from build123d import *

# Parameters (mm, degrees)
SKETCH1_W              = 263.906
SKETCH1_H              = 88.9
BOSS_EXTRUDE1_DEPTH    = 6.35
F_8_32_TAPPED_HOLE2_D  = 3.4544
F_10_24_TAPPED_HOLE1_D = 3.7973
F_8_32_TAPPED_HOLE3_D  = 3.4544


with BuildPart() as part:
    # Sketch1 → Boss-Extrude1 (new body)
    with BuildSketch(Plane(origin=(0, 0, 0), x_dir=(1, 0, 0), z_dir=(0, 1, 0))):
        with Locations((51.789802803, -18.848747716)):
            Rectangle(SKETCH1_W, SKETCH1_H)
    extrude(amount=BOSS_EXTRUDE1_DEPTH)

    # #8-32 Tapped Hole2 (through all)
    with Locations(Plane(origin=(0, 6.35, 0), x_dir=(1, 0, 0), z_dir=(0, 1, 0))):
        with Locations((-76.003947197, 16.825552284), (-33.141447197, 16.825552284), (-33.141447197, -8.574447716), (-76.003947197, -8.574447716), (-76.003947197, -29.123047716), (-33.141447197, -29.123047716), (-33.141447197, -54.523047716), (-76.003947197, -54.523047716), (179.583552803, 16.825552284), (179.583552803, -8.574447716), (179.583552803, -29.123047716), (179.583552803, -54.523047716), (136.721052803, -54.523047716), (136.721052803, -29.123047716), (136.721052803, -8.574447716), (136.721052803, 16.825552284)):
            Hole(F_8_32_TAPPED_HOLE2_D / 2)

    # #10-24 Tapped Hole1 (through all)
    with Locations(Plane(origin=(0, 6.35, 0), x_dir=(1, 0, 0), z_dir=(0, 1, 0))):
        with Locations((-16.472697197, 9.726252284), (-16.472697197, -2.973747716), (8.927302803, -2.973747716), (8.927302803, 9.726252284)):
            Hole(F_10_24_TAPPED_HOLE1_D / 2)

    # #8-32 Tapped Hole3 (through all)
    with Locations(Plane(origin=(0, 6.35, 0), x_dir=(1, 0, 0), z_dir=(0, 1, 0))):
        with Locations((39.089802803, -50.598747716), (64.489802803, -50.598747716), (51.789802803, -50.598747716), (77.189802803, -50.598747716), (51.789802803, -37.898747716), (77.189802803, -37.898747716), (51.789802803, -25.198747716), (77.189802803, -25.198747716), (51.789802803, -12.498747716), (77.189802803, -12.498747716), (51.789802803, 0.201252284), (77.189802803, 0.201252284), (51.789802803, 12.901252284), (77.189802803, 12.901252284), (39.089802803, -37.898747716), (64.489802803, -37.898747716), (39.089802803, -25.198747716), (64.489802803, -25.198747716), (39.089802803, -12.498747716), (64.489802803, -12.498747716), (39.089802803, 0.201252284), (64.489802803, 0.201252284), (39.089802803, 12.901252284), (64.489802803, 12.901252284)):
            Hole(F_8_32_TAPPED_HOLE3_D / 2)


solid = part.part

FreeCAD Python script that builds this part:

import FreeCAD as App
import Part
import Sketcher
Q = App.Units.Quantity


def add_polygon(sketch, points):
    """Adds a closed chain of lines whose ends are joined by coincident constraints."""
    first, n = sketch.GeometryCount, len(points)
    for a, b in zip(points, points[1:] + points[:1]):
        sketch.addGeometry(Part.LineSegment(App.Vector(*a, 0), App.Vector(*b, 0)), False)
    for i in range(n):
        sketch.addConstraint(Sketcher.Constraint("Coincident", first + i, 2, first + (i + 1) % n, 1))

doc = App.newDocument("Part")
body = doc.addObject("PartDesign::Body", "Body")

# Sketch on XZ plane
sketch1 = body.newObject("Sketcher::SketchObject", "Sketch")
sketch1.AttachmentSupport = (doc.getObject("XZ_Plane"), [""])
sketch1.MapMode = "FlatFace"
add_polygon(sketch1, [(-80, -26), (-80, 63), (184, 63), (184, -26)])  # lines 0-3
sketch1.addConstraint(Sketcher.Constraint("Vertical", 0))
sketch1.addConstraint(Sketcher.Constraint("Horizontal", 1))
sketch1.addConstraint(Sketcher.Constraint("Vertical", 2))
sketch1.addConstraint(Sketcher.Constraint("Horizontal", 3))
sketch1.addConstraint(Sketcher.Constraint("DistanceY", 0, 1, 0, 2, Q("3.5 in")))
sketch1.addConstraint(Sketcher.Constraint("DistanceX", 1, 1, 1, 2, Q("10.39 in")))
sketch1.addConstraint(Sketcher.Constraint("DistanceX", 0, 2, -1, 1, 80.163197))
sketch1.addConstraint(Sketcher.Constraint("DistanceY", -1, 1, 0, 2, 63.298748))
pad1 = body.newObject("PartDesign::Pad", "Pad")
pad1.Profile = sketch1
pad1.Length = Q("0.25 in")
pad1.Reversed = True

# Sketch on XZ plane
sketch2 = body.newObject("Sketcher::SketchObject", "Sketch001")
sketch2.AttachmentSupport = (doc.getObject("XZ_Plane"), [""])
sketch2.MapMode = "FlatFace"
sketch2.AttachmentOffset = App.Placement(App.Vector(0, 0, -0.25 * 25.4), App.Rotation())
sketch2.addGeometry(Part.Circle(App.Vector(-76, -16.8, 0), App.Vector(0, 0, 1), 1.7), False)
sketch2.addGeometry(Part.Circle(App.Vector(-33.1, -16.8, 0), App.Vector(0, 0, 1), 1.7), False)
sketch2.addGeometry(Part.Circle(App.Vector(-33.1, 8.6, 0), App.Vector(0, 0, 1), 1.7), False)
sketch2.addGeometry(Part.Circle(App.Vector(-76, 8.6, 0), App.Vector(0, 0, 1), 1.7), False)
sketch2.addGeometry(Part.Circle(App.Vector(-76, 29.1, 0), App.Vector(0, 0, 1), 1.7), False)
sketch2.addGeometry(Part.Circle(App.Vector(-33.1, 29.1, 0), App.Vector(0, 0, 1), 1.7), False)
sketch2.addGeometry(Part.Circle(App.Vector(-33.1, 54.5, 0), App.Vector(0, 0, 1), 1.7), False)
sketch2.addGeometry(Part.Circle(App.Vector(-76, 54.5, 0), App.Vector(0, 0, 1), 1.7), False)
sketch2.addGeometry(Part.Circle(App.Vector(179.6, -16.8, 0), App.Vector(0, 0, 1), 1.7), False)
sketch2.addGeometry(Part.Circle(App.Vector(179.6, 8.6, 0), App.Vector(0, 0, 1), 1.7), False)
sketch2.addGeometry(Part.Circle(App.Vector(179.6, 29.1, 0), App.Vector(0, 0, 1), 1.7), False)
sketch2.addGeometry(Part.Circle(App.Vector(179.6, 54.5, 0), App.Vector(0, 0, 1), 1.7), False)
sketch2.addGeometry(Part.Circle(App.Vector(136.7, 54.5, 0), App.Vector(0, 0, 1), 1.7), False)
sketch2.addGeometry(Part.Circle(App.Vector(136.7, 29.1, 0), App.Vector(0, 0, 1), 1.7), False)
sketch2.addGeometry(Part.Circle(App.Vector(136.7, 8.6, 0), App.Vector(0, 0, 1), 1.7), False)
sketch2.addGeometry(Part.Circle(App.Vector(136.7, -16.8, 0), App.Vector(0, 0, 1), 1.7), False)
sketch2.addConstraint(Sketcher.Constraint("Equal", 0, 1))
sketch2.addConstraint(Sketcher.Constraint("Equal", 1, 2))
sketch2.addConstraint(Sketcher.Constraint("Equal", 2, 3))
sketch2.addConstraint(Sketcher.Constraint("Equal", 3, 4))
sketch2.addConstraint(Sketcher.Constraint("Equal", 4, 5))
sketch2.addConstraint(Sketcher.Constraint("Equal", 5, 6))
sketch2.addConstraint(Sketcher.Constraint("Equal", 6, 7))
sketch2.addConstraint(Sketcher.Constraint("Equal", 7, 8))
sketch2.addConstraint(Sketcher.Constraint("Equal", 8, 9))
sketch2.addConstraint(Sketcher.Constraint("Equal", 9, 10))
sketch2.addConstraint(Sketcher.Constraint("Equal", 10, 11))
sketch2.addConstraint(Sketcher.Constraint("Equal", 11, 12))
sketch2.addConstraint(Sketcher.Constraint("Equal", 12, 13))
sketch2.addConstraint(Sketcher.Constraint("Equal", 13, 14))
sketch2.addConstraint(Sketcher.Constraint("Equal", 14, 15))
sketch2.addConstraint(Sketcher.Constraint("Horizontal", 0, 3, 1, 3))
sketch2.addConstraint(Sketcher.Constraint("Horizontal", 2, 3, 3, 3))
sketch2.addConstraint(Sketcher.Constraint("Horizontal", 4, 3, 5, 3))
sketch2.addConstraint(Sketcher.Constraint("Horizontal", 6, 3, 7, 3))
sketch2.addConstraint(Sketcher.Constraint("Horizontal", 1, 3, 8, 3))
sketch2.addConstraint(Sketcher.Constraint("Horizontal", 3, 3, 9, 3))
sketch2.addConstraint(Sketcher.Constraint("Horizontal", 5, 3, 10, 3))
sketch2.addConstraint(Sketcher.Constraint("Horizontal", 7, 3, 11, 3))
sketch2.addConstraint(Sketcher.Constraint("Horizontal", 11, 3, 12, 3))
sketch2.addConstraint(Sketcher.Constraint("Horizontal", 10, 3, 13, 3))
sketch2.addConstraint(Sketcher.Constraint("Horizontal", 9, 3, 14, 3))
sketch2.addConstraint(Sketcher.Constraint("Horizontal", 8, 3, 15, 3))
sketch2.addConstraint(Sketcher.Constraint("Vertical", 1, 3, 2, 3))
sketch2.addConstraint(Sketcher.Constraint("Vertical", 0, 3, 3, 3))
sketch2.addConstraint(Sketcher.Constraint("Vertical", 3, 3, 4, 3))
sketch2.addConstraint(Sketcher.Constraint("Vertical", 2, 3, 5, 3))
sketch2.addConstraint(Sketcher.Constraint("Vertical", 5, 3, 6, 3))
sketch2.addConstraint(Sketcher.Constraint("Vertical", 4, 3, 7, 3))
sketch2.addConstraint(Sketcher.Constraint("Vertical", 8, 3, 9, 3))
sketch2.addConstraint(Sketcher.Constraint("Vertical", 9, 3, 10, 3))
sketch2.addConstraint(Sketcher.Constraint("Vertical", 10, 3, 11, 3))
sketch2.addConstraint(Sketcher.Constraint("Vertical", 12, 3, 13, 3))
sketch2.addConstraint(Sketcher.Constraint("Vertical", 13, 3, 14, 3))
sketch2.addConstraint(Sketcher.Constraint("Vertical", 14, 3, 15, 3))
sketch2.addConstraint(Sketcher.Constraint("Diameter", 0, Q("0.136 in")))
sketch2.addConstraint(Sketcher.Constraint("DistanceY", 1, 3, 2, 3, Q("1 in")))
sketch2.addConstraint(Sketcher.Constraint("DistanceY", 5, 3, 6, 3, Q("1 in")))
sketch2.addConstraint(Sketcher.Constraint("DistanceX", 0, 3, 1, 3, Q("1.6875 in")))
sketch2.addConstraint(Sketcher.Constraint("DistanceY", 3, 3, 4, 3, Q("0.809 in")))
sketch2.addConstraint(Sketcher.Constraint("DistanceX", 1, 3, 8, 3, Q("8.375 in")))
sketch2.addConstraint(Sketcher.Constraint("DistanceX", 12, 3, 11, 3, Q("1.6875 in")))
sketch2.addConstraint(Sketcher.Constraint("DistanceX", 0, 3, -1, 1, 76.003947))
sketch2.addConstraint(Sketcher.Constraint("DistanceY", 0, 3, -1, 1, 16.825552))
doc.recompute()
hole = body.newObject("PartDesign::Hole", "Hole")
hole.Profile = sketch2
hole.ThreadType = "None"
hole.Diameter = Q("0.136 in")
hole.DepthType = "ThroughAll"
hole.Reversed = True

# Sketch on XZ plane
sketch3 = body.newObject("Sketcher::SketchObject", "Sketch002")
sketch3.AttachmentSupport = (doc.getObject("XZ_Plane"), [""])
sketch3.MapMode = "FlatFace"
sketch3.AttachmentOffset = App.Placement(App.Vector(0, 0, -0.25 * 25.4), App.Rotation())
sketch3.addGeometry(Part.Circle(App.Vector(-16.5, -9.7, 0), App.Vector(0, 0, 1), 1.9), False)
sketch3.addGeometry(Part.Circle(App.Vector(-16.5, 3, 0), App.Vector(0, 0, 1), 1.9), False)
sketch3.addGeometry(Part.Circle(App.Vector(8.9, 3, 0), App.Vector(0, 0, 1), 1.9), False)
sketch3.addGeometry(Part.Circle(App.Vector(8.9, -9.7, 0), App.Vector(0, 0, 1), 1.9), False)
sketch3.addConstraint(Sketcher.Constraint("Equal", 0, 1))
sketch3.addConstraint(Sketcher.Constraint("Equal", 1, 2))
sketch3.addConstraint(Sketcher.Constraint("Equal", 2, 3))
sketch3.addConstraint(Sketcher.Constraint("Horizontal", 1, 3, 2, 3))
sketch3.addConstraint(Sketcher.Constraint("Horizontal", 0, 3, 3, 3))
sketch3.addConstraint(Sketcher.Constraint("Vertical", 0, 3, 1, 3))
sketch3.addConstraint(Sketcher.Constraint("Vertical", 2, 3, 3, 3))
sketch3.addConstraint(Sketcher.Constraint("DistanceX", 1, 3, 2, 3, Q("1 in")))
sketch3.addConstraint(Sketcher.Constraint("Diameter", 0, Q("0.1495 in")))
sketch3.addConstraint(Sketcher.Constraint("DistanceY", 0, 3, 1, 3, Q("0.5 in")))
sketch3.addConstraint(Sketcher.Constraint("DistanceX", 0, 3, -1, 1, 16.472697))
sketch3.addConstraint(Sketcher.Constraint("DistanceY", 0, 3, -1, 1, 9.726252))
doc.recompute()
hole2 = body.newObject("PartDesign::Hole", "Hole001")
hole2.Profile = sketch3
hole2.ThreadType = "None"
hole2.Diameter = Q("0.1495 in")
hole2.DepthType = "ThroughAll"
hole2.Reversed = True

# Sketch on XZ plane
sketch4 = body.newObject("Sketcher::SketchObject", "Sketch003")
sketch4.AttachmentSupport = (doc.getObject("XZ_Plane"), [""])
sketch4.MapMode = "FlatFace"
sketch4.AttachmentOffset = App.Placement(App.Vector(0, 0, -0.25 * 25.4), App.Rotation())
sketch4.addGeometry(Part.Circle(App.Vector(39.1, 50.6, 0), App.Vector(0, 0, 1), 1.7), False)
sketch4.addGeometry(Part.Circle(App.Vector(64.5, 50.6, 0), App.Vector(0, 0, 1), 1.7), False)
sketch4.addGeometry(Part.Circle(App.Vector(51.8, 50.6, 0), App.Vector(0, 0, 1), 1.7), False)
sketch4.addGeometry(Part.Circle(App.Vector(77.2, 50.6, 0), App.Vector(0, 0, 1), 1.7), False)
sketch4.addGeometry(Part.Circle(App.Vector(51.8, 37.9, 0), App.Vector(0, 0, 1), 1.7), False)
sketch4.addGeometry(Part.Circle(App.Vector(77.2, 37.9, 0), App.Vector(0, 0, 1), 1.7), False)
sketch4.addGeometry(Part.Circle(App.Vector(51.8, 25.2, 0), App.Vector(0, 0, 1), 1.7), False)
sketch4.addGeometry(Part.Circle(App.Vector(77.2, 25.2, 0), App.Vector(0, 0, 1), 1.7), False)
sketch4.addGeometry(Part.Circle(App.Vector(51.8, 12.5, 0), App.Vector(0, 0, 1), 1.7), False)
sketch4.addGeometry(Part.Circle(App.Vector(77.2, 12.5, 0), App.Vector(0, 0, 1), 1.7), False)
sketch4.addGeometry(Part.Circle(App.Vector(51.8, -0.2, 0), App.Vector(0, 0, 1), 1.7), False)
sketch4.addGeometry(Part.Circle(App.Vector(77.2, -0.2, 0), App.Vector(0, 0, 1), 1.7), False)
sketch4.addGeometry(Part.Circle(App.Vector(51.8, -12.9, 0), App.Vector(0, 0, 1), 1.7), False)
sketch4.addGeometry(Part.Circle(App.Vector(77.2, -12.9, 0), App.Vector(0, 0, 1), 1.7), False)
sketch4.addGeometry(Part.Circle(App.Vector(39.1, 37.9, 0), App.Vector(0, 0, 1), 1.7), False)
sketch4.addGeometry(Part.Circle(App.Vector(64.5, 37.9, 0), App.Vector(0, 0, 1), 1.7), False)
sketch4.addGeometry(Part.Circle(App.Vector(39.1, 25.2, 0), App.Vector(0, 0, 1), 1.7), False)
sketch4.addGeometry(Part.Circle(App.Vector(64.5, 25.2, 0), App.Vector(0, 0, 1), 1.7), False)
sketch4.addGeometry(Part.Circle(App.Vector(39.1, 12.5, 0), App.Vector(0, 0, 1), 1.7), False)
sketch4.addGeometry(Part.Circle(App.Vector(64.5, 12.5, 0), App.Vector(0, 0, 1), 1.7), False)
sketch4.addGeometry(Part.Circle(App.Vector(39.1, -0.2, 0), App.Vector(0, 0, 1), 1.7), False)
sketch4.addGeometry(Part.Circle(App.Vector(64.5, -0.2, 0), App.Vector(0, 0, 1), 1.7), False)
sketch4.addGeometry(Part.Circle(App.Vector(39.1, -12.9, 0), App.Vector(0, 0, 1), 1.7), False)
sketch4.addGeometry(Part.Circle(App.Vector(64.5, -12.9, 0), App.Vector(0, 0, 1), 1.7), False)
sketch4.addConstraint(Sketcher.Constraint("Equal", 0, 1))
sketch4.addConstraint(Sketcher.Constraint("Equal", 1, 2))
sketch4.addConstraint(Sketcher.Constraint("Equal", 2, 3))
sketch4.addConstraint(Sketcher.Constraint("Equal", 3, 4))
sketch4.addConstraint(Sketcher.Constraint("Equal", 4, 5))
sketch4.addConstraint(Sketcher.Constraint("Equal", 5, 6))
sketch4.addConstraint(Sketcher.Constraint("Equal", 6, 7))
sketch4.addConstraint(Sketcher.Constraint("Equal", 7, 8))
sketch4.addConstraint(Sketcher.Constraint("Equal", 8, 9))
sketch4.addConstraint(Sketcher.Constraint("Equal", 9, 10))
sketch4.addConstraint(Sketcher.Constraint("Equal", 10, 11))
sketch4.addConstraint(Sketcher.Constraint("Equal", 11, 12))
sketch4.addConstraint(Sketcher.Constraint("Equal", 12, 13))
sketch4.addConstraint(Sketcher.Constraint("Equal", 13, 14))
sketch4.addConstraint(Sketcher.Constraint("Equal", 14, 15))
sketch4.addConstraint(Sketcher.Constraint("Equal", 15, 16))
sketch4.addConstraint(Sketcher.Constraint("Equal", 16, 17))
sketch4.addConstraint(Sketcher.Constraint("Equal", 17, 18))
sketch4.addConstraint(Sketcher.Constraint("Equal", 18, 19))
sketch4.addConstraint(Sketcher.Constraint("Equal", 19, 20))
sketch4.addConstraint(Sketcher.Constraint("Equal", 20, 21))
sketch4.addConstraint(Sketcher.Constraint("Equal", 21, 22))
sketch4.addConstraint(Sketcher.Constraint("Equal", 22, 23))
sketch4.addConstraint(Sketcher.Constraint("Horizontal", 0, 3, 1, 3))
sketch4.addConstraint(Sketcher.Constraint("Horizontal", 1, 3, 2, 3))
sketch4.addConstraint(Sketcher.Constraint("Horizontal", 2, 3, 3, 3))
sketch4.addConstraint(Sketcher.Constraint("Horizontal", 4, 3, 5, 3))
sketch4.addConstraint(Sketcher.Constraint("Horizontal", 6, 3, 7, 3))
sketch4.addConstraint(Sketcher.Constraint("Horizontal", 8, 3, 9, 3))
sketch4.addConstraint(Sketcher.Constraint("Horizontal", 10, 3, 11, 3))
sketch4.addConstraint(Sketcher.Constraint("Horizontal", 12, 3, 13, 3))
sketch4.addConstraint(Sketcher.Constraint("Horizontal", 5, 3, 14, 3))
sketch4.addConstraint(Sketcher.Constraint("Horizontal", 14, 3, 15, 3))
sketch4.addConstraint(Sketcher.Constraint("Horizontal", 7, 3, 16, 3))
sketch4.addConstraint(Sketcher.Constraint("Horizontal", 16, 3, 17, 3))
sketch4.addConstraint(Sketcher.Constraint("Horizontal", 9, 3, 18, 3))
sketch4.addConstraint(Sketcher.Constraint("Horizontal", 18, 3, 19, 3))
sketch4.addConstraint(Sketcher.Constraint("Horizontal", 11, 3, 20, 3))
sketch4.addConstraint(Sketcher.Constraint("Horizontal", 20, 3, 21, 3))
sketch4.addConstraint(Sketcher.Constraint("Horizontal", 13, 3, 22, 3))
sketch4.addConstraint(Sketcher.Constraint("Horizontal", 22, 3, 23, 3))
sketch4.addConstraint(Sketcher.Constraint("Vertical", 2, 3, 4, 3))
sketch4.addConstraint(Sketcher.Constraint("Vertical", 3, 3, 5, 3))
sketch4.addConstraint(Sketcher.Constraint("Vertical", 4, 3, 6, 3))
sketch4.addConstraint(Sketcher.Constraint("Vertical", 5, 3, 7, 3))
sketch4.addConstraint(Sketcher.Constraint("Vertical", 6, 3, 8, 3))
sketch4.addConstraint(Sketcher.Constraint("Vertical", 7, 3, 9, 3))
sketch4.addConstraint(Sketcher.Constraint("Vertical", 8, 3, 10, 3))
sketch4.addConstraint(Sketcher.Constraint("Vertical", 9, 3, 11, 3))
sketch4.addConstraint(Sketcher.Constraint("Vertical", 10, 3, 12, 3))
sketch4.addConstraint(Sketcher.Constraint("Vertical", 11, 3, 13, 3))
sketch4.addConstraint(Sketcher.Constraint("Vertical", 0, 3, 14, 3))
sketch4.addConstraint(Sketcher.Constraint("Vertical", 1, 3, 15, 3))
sketch4.addConstraint(Sketcher.Constraint("Vertical", 14, 3, 16, 3))
sketch4.addConstraint(Sketcher.Constraint("Vertical", 15, 3, 17, 3))
sketch4.addConstraint(Sketcher.Constraint("Vertical", 16, 3, 18, 3))
sketch4.addConstraint(Sketcher.Constraint("Vertical", 17, 3, 19, 3))
sketch4.addConstraint(Sketcher.Constraint("Vertical", 18, 3, 20, 3))
sketch4.addConstraint(Sketcher.Constraint("Vertical", 19, 3, 21, 3))
sketch4.addConstraint(Sketcher.Constraint("Vertical", 20, 3, 22, 3))
sketch4.addConstraint(Sketcher.Constraint("Vertical", 21, 3, 23, 3))
sketch4.addConstraint(Sketcher.Constraint("Diameter", 0, Q("0.136 in")))
sketch4.addConstraint(Sketcher.Constraint("DistanceX", 0, 3, 1, 3, Q("1 in")))
sketch4.addConstraint(Sketcher.Constraint("DistanceX", 2, 3, 3, 3, Q("1 in")))
sketch4.addConstraint(Sketcher.Constraint("DistanceY", 6, 3, 2, 3, Q("1 in")))
sketch4.addConstraint(Sketcher.Constraint("DistanceY", 8, 3, 4, 3, Q("1 in")))
sketch4.addConstraint(Sketcher.Constraint("DistanceY", 10, 3, 6, 3, Q("1 in")))
sketch4.addConstraint(Sketcher.Constraint("DistanceY", 12, 3, 8, 3, Q("1 in")))
sketch4.addConstraint(Sketcher.Constraint("DistanceX", 0, 3, 2, 3, Q("0.5 in")))
sketch4.addConstraint(Sketcher.Constraint("DistanceY", 4, 3, 2, 3, Q("0.5 in")))
sketch4.addConstraint(Sketcher.Constraint("DistanceX", -1, 1, 0, 3, 39.089803))
sketch4.addConstraint(Sketcher.Constraint("DistanceY", -1, 1, 0, 3, 50.598748))
doc.recompute()
hole3 = body.newObject("PartDesign::Hole", "Hole002")
hole3.Profile = sketch4
hole3.ThreadType = "None"
hole3.Diameter = Q("0.136 in")
hole3.DepthType = "ThroughAll"
hole3.Reversed = True

doc.recompute()
